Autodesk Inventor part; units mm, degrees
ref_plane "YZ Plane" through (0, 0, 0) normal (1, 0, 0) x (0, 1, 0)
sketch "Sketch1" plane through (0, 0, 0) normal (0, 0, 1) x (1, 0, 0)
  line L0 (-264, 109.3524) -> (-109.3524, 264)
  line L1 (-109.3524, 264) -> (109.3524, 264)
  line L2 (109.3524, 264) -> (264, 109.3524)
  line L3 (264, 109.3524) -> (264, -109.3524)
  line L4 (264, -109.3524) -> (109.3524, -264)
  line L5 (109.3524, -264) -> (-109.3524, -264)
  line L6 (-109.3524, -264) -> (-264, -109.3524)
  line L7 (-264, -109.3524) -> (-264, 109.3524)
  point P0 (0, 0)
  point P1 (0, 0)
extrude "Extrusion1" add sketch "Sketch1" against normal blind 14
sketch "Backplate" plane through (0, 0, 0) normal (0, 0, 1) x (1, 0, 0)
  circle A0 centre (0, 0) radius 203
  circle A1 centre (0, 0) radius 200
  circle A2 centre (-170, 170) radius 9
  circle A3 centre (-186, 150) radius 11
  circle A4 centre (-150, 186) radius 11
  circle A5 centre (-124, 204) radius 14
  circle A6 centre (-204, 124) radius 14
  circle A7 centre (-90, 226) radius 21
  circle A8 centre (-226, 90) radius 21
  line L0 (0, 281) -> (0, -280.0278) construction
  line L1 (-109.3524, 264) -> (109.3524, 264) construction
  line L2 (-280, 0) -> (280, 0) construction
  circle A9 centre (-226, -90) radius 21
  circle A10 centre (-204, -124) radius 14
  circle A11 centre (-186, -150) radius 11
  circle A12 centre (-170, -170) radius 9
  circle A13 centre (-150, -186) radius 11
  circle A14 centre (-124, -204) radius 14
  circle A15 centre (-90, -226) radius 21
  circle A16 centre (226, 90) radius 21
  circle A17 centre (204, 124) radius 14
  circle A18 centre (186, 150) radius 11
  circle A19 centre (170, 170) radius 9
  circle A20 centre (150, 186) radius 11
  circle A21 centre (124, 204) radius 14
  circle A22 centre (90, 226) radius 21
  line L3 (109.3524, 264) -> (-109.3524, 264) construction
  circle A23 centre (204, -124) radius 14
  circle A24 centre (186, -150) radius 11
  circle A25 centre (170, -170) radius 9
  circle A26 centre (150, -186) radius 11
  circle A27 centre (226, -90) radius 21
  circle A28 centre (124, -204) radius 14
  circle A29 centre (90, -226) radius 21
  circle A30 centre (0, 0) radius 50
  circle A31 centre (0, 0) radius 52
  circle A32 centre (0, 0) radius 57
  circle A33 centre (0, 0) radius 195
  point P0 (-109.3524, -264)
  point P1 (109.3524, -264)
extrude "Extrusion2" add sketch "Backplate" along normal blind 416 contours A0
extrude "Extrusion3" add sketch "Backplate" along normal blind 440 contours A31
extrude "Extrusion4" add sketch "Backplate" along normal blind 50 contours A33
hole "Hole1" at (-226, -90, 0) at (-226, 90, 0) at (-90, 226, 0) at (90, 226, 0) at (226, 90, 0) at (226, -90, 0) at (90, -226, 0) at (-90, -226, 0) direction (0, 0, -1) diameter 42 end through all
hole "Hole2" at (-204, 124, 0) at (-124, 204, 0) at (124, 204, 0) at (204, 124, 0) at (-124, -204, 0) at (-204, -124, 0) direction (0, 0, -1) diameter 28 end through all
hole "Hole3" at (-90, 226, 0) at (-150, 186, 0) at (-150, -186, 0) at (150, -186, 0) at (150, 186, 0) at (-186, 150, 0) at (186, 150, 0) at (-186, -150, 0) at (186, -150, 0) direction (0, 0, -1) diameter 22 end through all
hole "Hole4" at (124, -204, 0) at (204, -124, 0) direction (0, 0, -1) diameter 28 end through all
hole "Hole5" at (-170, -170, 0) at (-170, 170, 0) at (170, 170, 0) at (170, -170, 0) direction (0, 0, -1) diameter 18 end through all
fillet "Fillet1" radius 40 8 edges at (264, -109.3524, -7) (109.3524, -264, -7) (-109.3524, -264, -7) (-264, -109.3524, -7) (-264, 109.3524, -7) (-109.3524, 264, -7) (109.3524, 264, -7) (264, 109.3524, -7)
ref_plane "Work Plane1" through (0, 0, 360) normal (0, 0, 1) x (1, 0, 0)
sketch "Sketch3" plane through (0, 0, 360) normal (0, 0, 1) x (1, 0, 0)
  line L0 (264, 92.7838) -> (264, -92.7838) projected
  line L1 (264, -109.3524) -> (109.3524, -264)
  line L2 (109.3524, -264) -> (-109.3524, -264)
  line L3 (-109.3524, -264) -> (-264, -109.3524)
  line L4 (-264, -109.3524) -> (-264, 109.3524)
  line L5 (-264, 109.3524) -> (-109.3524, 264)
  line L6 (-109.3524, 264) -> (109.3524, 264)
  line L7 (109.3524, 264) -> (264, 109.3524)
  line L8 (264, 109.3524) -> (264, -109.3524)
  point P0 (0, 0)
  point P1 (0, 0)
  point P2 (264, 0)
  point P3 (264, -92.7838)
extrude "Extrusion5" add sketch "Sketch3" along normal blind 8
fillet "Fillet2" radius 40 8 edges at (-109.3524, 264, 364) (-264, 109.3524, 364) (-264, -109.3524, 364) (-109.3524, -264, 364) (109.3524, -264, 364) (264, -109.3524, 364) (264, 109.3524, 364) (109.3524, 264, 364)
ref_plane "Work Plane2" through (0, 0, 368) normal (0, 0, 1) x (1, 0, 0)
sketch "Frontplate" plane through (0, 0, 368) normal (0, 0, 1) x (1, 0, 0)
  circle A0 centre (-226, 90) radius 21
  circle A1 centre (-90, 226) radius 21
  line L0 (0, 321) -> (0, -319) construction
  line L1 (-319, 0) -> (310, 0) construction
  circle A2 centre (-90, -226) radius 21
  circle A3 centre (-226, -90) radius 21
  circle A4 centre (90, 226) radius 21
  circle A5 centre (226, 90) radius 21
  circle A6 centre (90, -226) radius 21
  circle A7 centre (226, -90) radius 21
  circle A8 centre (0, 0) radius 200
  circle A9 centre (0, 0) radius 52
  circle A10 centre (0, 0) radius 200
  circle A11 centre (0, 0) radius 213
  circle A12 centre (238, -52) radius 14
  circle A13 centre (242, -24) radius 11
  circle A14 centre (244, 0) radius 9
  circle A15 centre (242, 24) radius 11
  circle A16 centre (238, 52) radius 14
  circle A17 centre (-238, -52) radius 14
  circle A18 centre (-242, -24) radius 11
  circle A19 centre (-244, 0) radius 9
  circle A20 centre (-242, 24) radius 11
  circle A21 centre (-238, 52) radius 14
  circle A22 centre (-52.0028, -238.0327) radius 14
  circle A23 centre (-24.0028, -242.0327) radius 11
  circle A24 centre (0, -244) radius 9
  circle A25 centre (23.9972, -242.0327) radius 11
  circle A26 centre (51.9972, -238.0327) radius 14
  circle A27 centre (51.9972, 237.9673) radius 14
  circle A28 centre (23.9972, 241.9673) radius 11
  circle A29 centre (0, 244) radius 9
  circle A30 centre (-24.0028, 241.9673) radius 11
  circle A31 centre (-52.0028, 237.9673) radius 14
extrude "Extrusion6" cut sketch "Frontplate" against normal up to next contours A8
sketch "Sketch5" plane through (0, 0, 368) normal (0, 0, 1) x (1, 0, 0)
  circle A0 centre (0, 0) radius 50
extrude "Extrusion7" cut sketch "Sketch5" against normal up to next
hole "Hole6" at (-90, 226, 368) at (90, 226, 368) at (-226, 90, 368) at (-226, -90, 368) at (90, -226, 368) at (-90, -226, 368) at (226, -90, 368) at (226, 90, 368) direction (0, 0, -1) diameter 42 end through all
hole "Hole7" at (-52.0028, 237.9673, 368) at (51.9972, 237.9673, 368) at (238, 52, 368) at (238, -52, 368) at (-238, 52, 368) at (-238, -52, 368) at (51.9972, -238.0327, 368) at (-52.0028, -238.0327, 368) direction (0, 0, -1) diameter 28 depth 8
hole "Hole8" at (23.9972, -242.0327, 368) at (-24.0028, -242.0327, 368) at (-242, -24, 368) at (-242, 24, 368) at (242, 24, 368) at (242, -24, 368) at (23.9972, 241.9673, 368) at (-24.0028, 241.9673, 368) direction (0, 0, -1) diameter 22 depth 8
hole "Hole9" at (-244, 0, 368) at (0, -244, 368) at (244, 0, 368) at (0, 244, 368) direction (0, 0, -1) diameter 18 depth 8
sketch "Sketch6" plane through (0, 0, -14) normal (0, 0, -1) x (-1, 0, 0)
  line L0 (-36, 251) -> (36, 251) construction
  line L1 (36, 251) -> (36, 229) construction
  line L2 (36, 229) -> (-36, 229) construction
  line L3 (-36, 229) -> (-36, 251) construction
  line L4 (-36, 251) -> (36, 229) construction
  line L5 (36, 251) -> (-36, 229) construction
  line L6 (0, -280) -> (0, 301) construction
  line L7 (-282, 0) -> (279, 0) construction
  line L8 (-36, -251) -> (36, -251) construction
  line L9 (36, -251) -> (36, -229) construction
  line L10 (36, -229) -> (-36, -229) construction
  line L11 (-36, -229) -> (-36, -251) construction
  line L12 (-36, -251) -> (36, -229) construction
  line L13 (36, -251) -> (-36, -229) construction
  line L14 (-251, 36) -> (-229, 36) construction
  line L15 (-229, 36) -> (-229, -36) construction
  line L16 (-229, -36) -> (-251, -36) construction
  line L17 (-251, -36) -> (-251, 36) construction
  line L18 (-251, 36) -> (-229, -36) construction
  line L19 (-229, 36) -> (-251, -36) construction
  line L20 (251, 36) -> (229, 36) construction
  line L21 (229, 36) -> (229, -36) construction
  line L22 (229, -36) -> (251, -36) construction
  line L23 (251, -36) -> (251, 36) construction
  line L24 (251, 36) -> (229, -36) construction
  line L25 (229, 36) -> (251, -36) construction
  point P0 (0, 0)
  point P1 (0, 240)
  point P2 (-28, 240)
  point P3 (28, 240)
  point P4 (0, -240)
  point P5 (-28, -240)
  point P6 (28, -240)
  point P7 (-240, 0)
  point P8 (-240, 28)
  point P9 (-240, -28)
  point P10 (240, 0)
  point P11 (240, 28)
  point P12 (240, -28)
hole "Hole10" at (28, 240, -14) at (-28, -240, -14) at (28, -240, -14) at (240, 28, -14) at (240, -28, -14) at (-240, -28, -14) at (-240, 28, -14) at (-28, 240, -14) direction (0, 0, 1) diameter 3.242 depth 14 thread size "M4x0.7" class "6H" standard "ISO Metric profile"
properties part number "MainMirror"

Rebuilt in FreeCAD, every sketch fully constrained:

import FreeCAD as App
import Part
import Sketcher
Q = App.Units.Quantity


def edges_at(feature, points):
    """Names of the edges that pass closest to the given points."""
    edges = feature.Shape.Edges
    near = lambda p: min(range(len(edges)), key=lambda i: edges[i].distToShape(Part.Vertex(*p))[0])
    return sorted({f"Edge{near(p) + 1}" for p in points})

doc = App.newDocument("Part")
body = doc.addObject("PartDesign::Body", "Body")

sketch1 = body.newObject("Sketcher::SketchObject", "Sketch")
sketch1.AttachmentSupport = (doc.getObject("XY_Plane"), [""])
sketch1.MapMode = "FlatFace"
sketch1.addGeometry(Part.LineSegment(App.Vector(-109, 264, 0), App.Vector(-264, 109, 0)), False)
sketch1.addGeometry(Part.LineSegment(App.Vector(-264, 109, 0), App.Vector(-264, -109, 0)), False)
sketch1.addGeometry(Part.LineSegment(App.Vector(-264, -109, 0), App.Vector(-109, -264, 0)), False)
sketch1.addGeometry(Part.LineSegment(App.Vector(-109, -264, 0), App.Vector(109, -264, 0)), False)
sketch1.addGeometry(Part.LineSegment(App.Vector(109, -264, 0), App.Vector(264, -109, 0)), False)
sketch1.addGeometry(Part.LineSegment(App.Vector(264, -109, 0), App.Vector(264, 109, 0)), False)
sketch1.addGeometry(Part.LineSegment(App.Vector(264, 109, 0), App.Vector(109, 264, 0)), False)
sketch1.addGeometry(Part.LineSegment(App.Vector(109, 264, 0), App.Vector(-109, 264, 0)), False)
sketch1.addConstraint(Sketcher.Constraint("Coincident", 0, 2, 1, 1))
sketch1.addConstraint(Sketcher.Constraint("Coincident", 1, 2, 2, 1))
sketch1.addConstraint(Sketcher.Constraint("Coincident", 2, 2, 3, 1))
sketch1.addConstraint(Sketcher.Constraint("Coincident", 3, 2, 4, 1))
sketch1.addConstraint(Sketcher.Constraint("Coincident", 4, 2, 5, 1))
sketch1.addConstraint(Sketcher.Constraint("Coincident", 5, 2, 6, 1))
sketch1.addConstraint(Sketcher.Constraint("Coincident", 6, 2, 7, 1))
sketch1.addConstraint(Sketcher.Constraint("Coincident", 7, 2, 0, 1))
sketch1.addConstraint(Sketcher.Constraint("Vertical", 1))
sketch1.addConstraint(Sketcher.Constraint("Horizontal", 3))
sketch1.addConstraint(Sketcher.Constraint("Vertical", 5))
sketch1.addConstraint(Sketcher.Constraint("Horizontal", 7))
sketch1.addConstraint(Sketcher.Constraint("Symmetric", 0, 2, 4, 2, -1, 1))
sketch1.addConstraint(Sketcher.Constraint("Symmetric", 2, 2, 6, 2, -1, 1))
sketch1.addConstraint(Sketcher.Constraint("Perpendicular", 0, 2))
sketch1.addConstraint(Sketcher.Constraint("Perpendicular", 2, 4))
sketch1.addConstraint(Sketcher.Constraint("Perpendicular", 4, 6))
sketch1.addConstraint(Sketcher.Constraint("Horizontal", 1, 2, 4, 2))
sketch1.addConstraint(Sketcher.Constraint("Vertical", 3, 2, 6, 2))
sketch1.addConstraint(Sketcher.Constraint("Equal", 7, 1))
sketch1.addConstraint(Sketcher.Constraint("DistanceX", 0, 2, -1, 1, Q("264 mm")))
sketch1.addConstraint(Sketcher.Constraint("DistanceX", 3, 1, 3, 2, Q("218.7048 mm")))
pad1 = body.newObject("PartDesign::Pad", "Pad")
pad1.Profile = sketch1
pad1.Length = 14
pad1.Reversed = True

sketch2 = body.newObject("Sketcher::SketchObject", "Sketch001")
sketch2.AttachmentSupport = (doc.getObject("XY_Plane"), [""])
sketch2.MapMode = "FlatFace"
sketch2.addGeometry(Part.Circle(App.Vector(0, 0, 0), App.Vector(0, 0, 1), 203), False)
sketch2.addGeometry(Part.Circle(App.Vector(0, 0, 0), App.Vector(0, 0, 1), 200), False)
sketch2.addConstraint(Sketcher.Constraint("Coincident", 0, 3, -1, 1))
sketch2.addConstraint(Sketcher.Constraint("Coincident", 1, 3, -1, 1))
sketch2.addConstraint(Sketcher.Constraint("Diameter", 0, Q("406 mm")))
sketch2.addConstraint(Sketcher.Constraint("Diameter", 1, Q("400 mm")))
pad2 = body.newObject("PartDesign::Pad", "Pad001")
pad2.Profile = sketch2
pad2.Length = 416

sketch3 = body.newObject("Sketcher::SketchObject", "Sketch002")
sketch3.AttachmentSupport = (doc.getObject("XY_Plane"), [""])
sketch3.MapMode = "FlatFace"
sketch3.addGeometry(Part.Circle(App.Vector(0, 0, 0), App.Vector(0, 0, 1), 52), False)
sketch3.addGeometry(Part.Circle(App.Vector(0, 0, 0), App.Vector(0, 0, 1), 50), False)
sketch3.addConstraint(Sketcher.Constraint("Coincident", 0, 3, -1, 1))
sketch3.addConstraint(Sketcher.Constraint("Coincident", 1, 3, -1, 1))
sketch3.addConstraint(Sketcher.Constraint("Diameter", 0, Q("104 mm")))
sketch3.addConstraint(Sketcher.Constraint("Diameter", 1, Q("100 mm")))
pad3 = body.newObject("PartDesign::Pad", "Pad002")
pad3.Profile = sketch3
pad3.Length = 440

sketch4 = body.newObject("Sketcher::SketchObject", "Sketch003")
sketch4.AttachmentSupport = (doc.getObject("XY_Plane"), [""])
sketch4.MapMode = "FlatFace"
sketch4.addGeometry(Part.Circle(App.Vector(0, 0, 0), App.Vector(0, 0, 1), 195), False)
sketch4.addGeometry(Part.Circle(App.Vector(0, 0, 0), App.Vector(0, 0, 1), 57), False)
sketch4.addConstraint(Sketcher.Constraint("Coincident", 0, 3, -1, 1))
sketch4.addConstraint(Sketcher.Constraint("Coincident", 1, 3, -1, 1))
sketch4.addConstraint(Sketcher.Constraint("Diameter", 0, Q("390 mm")))
sketch4.addConstraint(Sketcher.Constraint("Diameter", 1, Q("114 mm")))
pad4 = body.newObject("PartDesign::Pad", "Pad003")
pad4.Profile = sketch4
pad4.Length = 50

sketch5 = body.newObject("Sketcher::SketchObject", "Sketch004")
sketch5.AttachmentSupport = (doc.getObject("XY_Plane"), [""])
sketch5.MapMode = "FlatFace"
sketch5.addGeometry(Part.Circle(App.Vector(-226, -90, 0), App.Vector(0, 0, 1), 21), False)
sketch5.addGeometry(Part.Circle(App.Vector(-226, 90, 0), App.Vector(0, 0, 1), 21), False)
sketch5.addGeometry(Part.Circle(App.Vector(-90, 226, 0), App.Vector(0, 0, 1), 21), False)
sketch5.addGeometry(Part.Circle(App.Vector(90, 226, 0), App.Vector(0, 0, 1), 21), False)
sketch5.addGeometry(Part.Circle(App.Vector(226, 90, 0), App.Vector(0, 0, 1), 21), False)
sketch5.addGeometry(Part.Circle(App.Vector(226, -90, 0), App.Vector(0, 0, 1), 21), False)
sketch5.addGeometry(Part.Circle(App.Vector(90, -226, 0), App.Vector(0, 0, 1), 21), False)
sketch5.addGeometry(Part.Circle(App.Vector(-90, -226, 0), App.Vector(0, 0, 1), 21), False)
sketch5.addConstraint(Sketcher.Constraint("Equal", 0, 1))
sketch5.addConstraint(Sketcher.Constraint("Equal", 1, 2))
sketch5.addConstraint(Sketcher.Constraint("Equal", 2, 3))
sketch5.addConstraint(Sketcher.Constraint("Equal", 3, 4))
sketch5.addConstraint(Sketcher.Constraint("Equal", 4, 5))
sketch5.addConstraint(Sketcher.Constraint("Equal", 5, 6))
sketch5.addConstraint(Sketcher.Constraint("Equal", 6, 7))
sketch5.addConstraint(Sketcher.Constraint("Symmetric", 0, 3, 4, 3, -1, 1))
sketch5.addConstraint(Sketcher.Constraint("Symmetric", 1, 3, 5, 3, -1, 1))
sketch5.addConstraint(Sketcher.Constraint("Symmetric", 2, 3, 6, 3, -1, 1))
sketch5.addConstraint(Sketcher.Constraint("Symmetric", 3, 3, 7, 3, -1, 1))
sketch5.addConstraint(Sketcher.Constraint("Symmetric", 2, 3, 3, 3, -2))
sketch5.addConstraint(Sketcher.Constraint("Symmetric", 1, 3, 4, 3, -2))
sketch5.addConstraint(Sketcher.Constraint("Diameter", 0, Q("42 mm")))
sketch5.addConstraint(Sketcher.Constraint("DistanceX", 0, 3, -1, 1, Q("226 mm")))
sketch5.addConstraint(Sketcher.Constraint("DistanceY", 0, 3, -1, 1, Q("90 mm")))
sketch5.addConstraint(Sketcher.Constraint("DistanceX", 2, 3, -1, 1, Q("90 mm")))
sketch5.addConstraint(Sketcher.Constraint("DistanceY", -1, 1, 2, 3, Q("226 mm")))
doc.recompute()
hole = body.newObject("PartDesign::Hole", "Hole")
hole.Profile = sketch5
hole.ThreadType = "None"
hole.Diameter = 42
hole.DepthType = "ThroughAll"

sketch6 = body.newObject("Sketcher::SketchObject", "Sketch005")
sketch6.AttachmentSupport = (doc.getObject("XY_Plane"), [""])
sketch6.MapMode = "FlatFace"
sketch6.addGeometry(Part.Circle(App.Vector(-204, 124, 0), App.Vector(0, 0, 1), 14), False)
sketch6.addGeometry(Part.Circle(App.Vector(-124, 204, 0), App.Vector(0, 0, 1), 14), False)
sketch6.addGeometry(Part.Circle(App.Vector(124, 204, 0), App.Vector(0, 0, 1), 14), False)
sketch6.addGeometry(Part.Circle(App.Vector(204, 124, 0), App.Vector(0, 0, 1), 14), False)
sketch6.addGeometry(Part.Circle(App.Vector(-124, -204, 0), App.Vector(0, 0, 1), 14), False)
sketch6.addGeometry(Part.Circle(App.Vector(-204, -124, 0), App.Vector(0, 0, 1), 14), False)
sketch6.addConstraint(Sketcher.Constraint("Equal", 0, 1))
sketch6.addConstraint(Sketcher.Constraint("Equal", 1, 2))
sketch6.addConstraint(Sketcher.Constraint("Equal", 2, 3))
sketch6.addConstraint(Sketcher.Constraint("Equal", 3, 4))
sketch6.addConstraint(Sketcher.Constraint("Equal", 4, 5))
sketch6.addConstraint(Sketcher.Constraint("Symmetric", 2, 3, 4, 3, -1, 1))
sketch6.addConstraint(Sketcher.Constraint("Symmetric", 3, 3, 5, 3, -1, 1))
sketch6.addConstraint(Sketcher.Constraint("Symmetric", 1, 3, 2, 3, -2))
sketch6.addConstraint(Sketcher.Constraint("Symmetric", 0, 3, 3, 3, -2))
sketch6.addConstraint(Sketcher.Constraint("Diameter", 0, Q("28 mm")))
sketch6.addConstraint(Sketcher.Constraint("DistanceX", 0, 3, -1, 1, Q("204 mm")))
sketch6.addConstraint(Sketcher.Constraint("DistanceY", -1, 1, 0, 3, Q("124 mm")))
sketch6.addConstraint(Sketcher.Constraint("DistanceX", 1, 3, -1, 1, Q("124 mm")))
sketch6.addConstraint(Sketcher.Constraint("DistanceY", -1, 1, 1, 3, Q("204 mm")))
doc.recompute()
hole2 = body.newObject("PartDesign::Hole", "Hole001")
hole2.Profile = sketch6
hole2.ThreadType = "None"
hole2.Diameter = 28
hole2.DepthType = "ThroughAll"

sketch7 = body.newObject("Sketcher::SketchObject", "Sketch006")
sketch7.AttachmentSupport = (doc.getObject("XY_Plane"), [""])
sketch7.MapMode = "FlatFace"
sketch7.addGeometry(Part.Circle(App.Vector(-90, 226, 0), App.Vector(0, 0, 1), 11), False)
sketch7.addGeometry(Part.Circle(App.Vector(-150, 186, 0), App.Vector(0, 0, 1), 11), False)
sketch7.addGeometry(Part.Circle(App.Vector(-150, -186, 0), App.Vector(0, 0, 1), 11), False)
sketch7.addGeometry(Part.Circle(App.Vector(150, -186, 0), App.Vector(0, 0, 1), 11), False)
sketch7.addGeometry(Part.Circle(App.Vector(150, 186, 0), App.Vector(0, 0, 1), 11), False)
sketch7.addGeometry(Part.Circle(App.Vector(-186, 150, 0), App.Vector(0, 0, 1), 11), False)
sketch7.addGeometry(Part.Circle(App.Vector(186, 150, 0), App.Vector(0, 0, 1), 11), False)
sketch7.addGeometry(Part.Circle(App.Vector(-186, -150, 0), App.Vector(0, 0, 1), 11), False)
sketch7.addGeometry(Part.Circle(App.Vector(186, -150, 0), App.Vector(0, 0, 1), 11), False)
sketch7.addConstraint(Sketcher.Constraint("Equal", 0, 1))
sketch7.addConstraint(Sketcher.Constraint("Equal", 1, 2))
sketch7.addConstraint(Sketcher.Constraint("Equal", 2, 3))
sketch7.addConstraint(Sketcher.Constraint("Equal", 3, 4))
sketch7.addConstraint(Sketcher.Constraint("Equal", 4, 5))
sketch7.addConstraint(Sketcher.Constraint("Equal", 5, 6))
sketch7.addConstraint(Sketcher.Constraint("Equal", 6, 7))
sketch7.addConstraint(Sketcher.Constraint("Equal", 7, 8))
sketch7.addConstraint(Sketcher.Constraint("Symmetric", 1, 3, 3, 3, -1, 1))
sketch7.addConstraint(Sketcher.Constraint("Symmetric", 2, 3, 4, 3, -1, 1))
sketch7.addConstraint(Sketcher.Constraint("Symmetric", 6, 3, 7, 3, -1, 1))
sketch7.addConstraint(Sketcher.Constraint("Symmetric", 5, 3, 8, 3, -1, 1))
sketch7.addConstraint(Sketcher.Constraint("Symmetric", 2, 3, 3, 3, -2))
sketch7.addConstraint(Sketcher.Constraint("Symmetric", 5, 3, 6, 3, -2))
sketch7.addConstraint(Sketcher.Constraint("Diameter", 0, Q("22 mm")))
sketch7.addConstraint(Sketcher.Constraint("DistanceX", 0, 3, -1, 1, Q("90 mm")))
sketch7.addConstraint(Sketcher.Constraint("DistanceY", -1, 1, 0, 3, Q("226 mm")))
sketch7.addConstraint(Sketcher.Constraint("DistanceX", 1, 3, -1, 1, Q("150 mm")))
sketch7.addConstraint(Sketcher.Constraint("DistanceY", -1, 1, 1, 3, Q("186 mm")))
sketch7.addConstraint(Sketcher.Constraint("DistanceX", 5, 3, -1, 1, Q("186 mm")))
sketch7.addConstraint(Sketcher.Constraint("DistanceY", -1, 1, 5, 3, Q("150 mm")))
doc.recompute()
hole3 = body.newObject("PartDesign::Hole", "Hole002")
hole3.Profile = sketch7
hole3.ThreadType = "None"
hole3.Diameter = 22
hole3.DepthType = "ThroughAll"

sketch8 = body.newObject("Sketcher::SketchObject", "Sketch007")
sketch8.AttachmentSupport = (doc.getObject("XY_Plane"), [""])
sketch8.MapMode = "FlatFace"
sketch8.addGeometry(Part.Circle(App.Vector(124, -204, 0), App.Vector(0, 0, 1), 14), False)
sketch8.addGeometry(Part.Circle(App.Vector(204, -124, 0), App.Vector(0, 0, 1), 14), False)
sketch8.addConstraint(Sketcher.Constraint("Equal", 0, 1))
sketch8.addConstraint(Sketcher.Constraint("Diameter", 0, Q("28 mm")))
sketch8.addConstraint(Sketcher.Constraint("DistanceX", -1, 1, 0, 3, Q("124 mm")))
sketch8.addConstraint(Sketcher.Constraint("DistanceY", 0, 3, -1, 1, Q("204 mm")))
sketch8.addConstraint(Sketcher.Constraint("DistanceX", -1, 1, 1, 3, Q("204 mm")))
sketch8.addConstraint(Sketcher.Constraint("DistanceY", 1, 3, -1, 1, Q("124 mm")))
doc.recompute()
hole4 = body.newObject("PartDesign::Hole", "Hole003")
hole4.Profile = sketch8
hole4.ThreadType = "None"
hole4.Diameter = 28
hole4.DepthType = "ThroughAll"

sketch9 = body.newObject("Sketcher::SketchObject", "Sketch008")
sketch9.AttachmentSupport = (doc.getObject("XY_Plane"), [""])
sketch9.MapMode = "FlatFace"
sketch9.addGeometry(Part.Circle(App.Vector(-170, -170, 0), App.Vector(0, 0, 1), 9), False)
sketch9.addGeometry(Part.Circle(App.Vector(-170, 170, 0), App.Vector(0, 0, 1), 9), False)
sketch9.addGeometry(Part.Circle(App.Vector(170, 170, 0), App.Vector(0, 0, 1), 9), False)
sketch9.addGeometry(Part.Circle(App.Vector(170, -170, 0), App.Vector(0, 0, 1), 9), False)
sketch9.addConstraint(Sketcher.Constraint("Equal", 0, 1))
sketch9.addConstraint(Sketcher.Constraint("Equal", 1, 2))
sketch9.addConstraint(Sketcher.Constraint("Equal", 2, 3))
sketch9.addConstraint(Sketcher.Constraint("Symmetric", 0, 3, 2, 3, -1, 1))
sketch9.addConstraint(Sketcher.Constraint("Symmetric", 1, 3, 3, 3, -1, 1))
sketch9.addConstraint(Sketcher.Constraint("Symmetric", 1, 3, 2, 3, -2))
sketch9.addConstraint(Sketcher.Constraint("Diameter", 0, Q("18 mm")))
sketch9.addConstraint(Sketcher.Constraint("DistanceX", 0, 3, -1, 1, Q("170 mm")))
sketch9.addConstraint(Sketcher.Constraint("DistanceY", 0, 3, -1, 1, Q("170 mm")))
doc.recompute()
hole5 = body.newObject("PartDesign::Hole", "Hole004")
hole5.Profile = sketch9
hole5.ThreadType = "None"
hole5.Diameter = 18
hole5.DepthType = "ThroughAll"
doc.recompute()

fillet = body.newObject("PartDesign::Fillet", "Fillet")
fillet.Base = (hole5, edges_at(hole5, [
    (264, -109.352, -7),
    (109.352, -264, -7),
    (-109.352, -264, -7),
    (-264, -109.352, -7),
    (-264, 109.352, -7),
    (-109.352, 264, -7),
    (109.352, 264, -7),
    (264, 109.352, -7),
]))
fillet.Radius = 40

sketch10 = body.newObject("Sketcher::SketchObject", "Sketch009")
sketch10.AttachmentSupport = (doc.getObject("XY_Plane"), [""])
sketch10.MapMode = "FlatFace"
sketch10.AttachmentOffset = App.Placement(App.Vector(0, 0, 360), App.Rotation())
sketch10.addGeometry(Part.LineSegment(App.Vector(264, -109, 0), App.Vector(264, 109, 0)), False)
sketch10.addGeometry(Part.LineSegment(App.Vector(264, 109, 0), App.Vector(109, 264, 0)), False)
sketch10.addGeometry(Part.LineSegment(App.Vector(109, 264, 0), App.Vector(-109, 264, 0)), False)
sketch10.addGeometry(Part.LineSegment(App.Vector(-109, 264, 0), App.Vector(-264, 109, 0)), False)
sketch10.addGeometry(Part.LineSegment(App.Vector(-264, 109, 0), App.Vector(-264, -109, 0)), False)
sketch10.addGeometry(Part.LineSegment(App.Vector(-264, -109, 0), App.Vector(-109, -264, 0)), False)
sketch10.addGeometry(Part.LineSegment(App.Vector(-109, -264, 0), App.Vector(109, -264, 0)), False)
sketch10.addGeometry(Part.LineSegment(App.Vector(109, -264, 0), App.Vector(264, -109, 0)), False)
sketch10.addConstraint(Sketcher.Constraint("Coincident", 0, 2, 1, 1))
sketch10.addConstraint(Sketcher.Constraint("Coincident", 1, 2, 2, 1))
sketch10.addConstraint(Sketcher.Constraint("Coincident", 2, 2, 3, 1))
sketch10.addConstraint(Sketcher.Constraint("Coincident", 3, 2, 4, 1))
sketch10.addConstraint(Sketcher.Constraint("Coincident", 4, 2, 5, 1))
sketch10.addConstraint(Sketcher.Constraint("Coincident", 5, 2, 6, 1))
sketch10.addConstraint(Sketcher.Constraint("Coincident", 6, 2, 7, 1))
sketch10.addConstraint(Sketcher.Constraint("Coincident", 7, 2, 0, 1))
sketch10.addConstraint(Sketcher.Constraint("Vertical", 0))
sketch10.addConstraint(Sketcher.Constraint("Horizontal", 2))
sketch10.addConstraint(Sketcher.Constraint("Vertical", 4))
sketch10.addConstraint(Sketcher.Constraint("Horizontal", 6))
sketch10.addConstraint(Sketcher.Constraint("Symmetric", 0, 2, 4, 2, -1, 1))
sketch10.addConstraint(Sketcher.Constraint("Symmetric", 1, 2, 5, 2, -1, 1))
sketch10.addConstraint(Sketcher.Constraint("Perpendicular", 1, 3))
sketch10.addConstraint(Sketcher.Constraint("Perpendicular", 5, 7))
sketch10.addConstraint(Sketcher.Constraint("Horizontal", 0, 2, 3, 2))
sketch10.addConstraint(Sketcher.Constraint("Horizontal", 4, 2, 7, 2))
sketch10.addConstraint(Sketcher.Constraint("Vertical", 2, 2, 5, 2))
sketch10.addConstraint(Sketcher.Constraint("Equal", 6, 0))
sketch10.addConstraint(Sketcher.Constraint("DistanceX", -1, 1, 0, 2, Q("264 mm")))
sketch10.addConstraint(Sketcher.Constraint("DistanceX", 2, 2, 2, 1, Q("218.7048 mm")))
pad5 = body.newObject("PartDesign::Pad", "Pad004")
pad5.Profile = sketch10
pad5.Length = 8
doc.recompute()

fillet2 = body.newObject("PartDesign::Fillet", "Fillet001")
fillet2.Base = (pad5, edges_at(pad5, [
    (-109.352, 264, 364),
    (-264, 109.352, 364),
    (-264, -109.352, 364),
    (-109.352, -264, 364),
    (109.352, -264, 364),
    (264, -109.352, 364),
    (264, 109.352, 364),
    (109.352, 264, 364),
]))
fillet2.Radius = 40

sketch11 = body.newObject("Sketcher::SketchObject", "Sketch010")
sketch11.AttachmentSupport = (doc.getObject("XY_Plane"), [""])
sketch11.MapMode = "FlatFace"
sketch11.AttachmentOffset = App.Placement(App.Vector(0, 0, 368), App.Rotation())
sketch11.addGeometry(Part.Circle(App.Vector(0, 0, 0), App.Vector(0, 0, 1), 200), False)
sketch11.addGeometry(Part.Circle(App.Vector(0, 0, 0), App.Vector(0, 0, 1), 52), False)
sketch11.addConstraint(Sketcher.Constraint("Coincident", 0, 3, -1, 1))
sketch11.addConstraint(Sketcher.Constraint("Coincident", 1, 3, -1, 1))
sketch11.addConstraint(Sketcher.Constraint("Diameter", 0, Q("400 mm")))
sketch11.addConstraint(Sketcher.Constraint("Diameter", 1, Q("104 mm")))
pocket1 = body.newObject("PartDesign::Pocket", "Pocket")
pocket1.Profile = sketch11
pocket1.Type = "UpToFirst"

sketch12 = body.newObject("Sketcher::SketchObject", "Sketch011")
sketch12.AttachmentSupport = (doc.getObject("XY_Plane"), [""])
sketch12.MapMode = "FlatFace"
sketch12.AttachmentOffset = App.Placement(App.Vector(0, 0, 368), App.Rotation())
sketch12.addGeometry(Part.Circle(App.Vector(0, 0, 0), App.Vector(0, 0, 1), 50), False)
sketch12.addConstraint(Sketcher.Constraint("Coincident", 0, 3, -1, 1))
sketch12.addConstraint(Sketcher.Constraint("Diameter", 0, Q("100 mm")))
pocket2 = body.newObject("PartDesign::Pocket", "Pocket001")
pocket2.Profile = sketch12
pocket2.Type = "UpToFirst"

sketch13 = body.newObject("Sketcher::SketchObject", "Sketch012")
sketch13.AttachmentSupport = (doc.getObject("XY_Plane"), [""])
sketch13.MapMode = "FlatFace"
sketch13.AttachmentOffset = App.Placement(App.Vector(0, 0, 368), App.Rotation())
sketch13.addGeometry(Part.Circle(App.Vector(-90, 226, 0), App.Vector(0, 0, 1), 21), False)
sketch13.addGeometry(Part.Circle(App.Vector(90, 226, 0), App.Vector(0, 0, 1), 21), False)
sketch13.addGeometry(Part.Circle(App.Vector(-226, 90, 0), App.Vector(0, 0, 1), 21), False)
sketch13.addGeometry(Part.Circle(App.Vector(-226, -90, 0), App.Vector(0, 0, 1), 21), False)
sketch13.addGeometry(Part.Circle(App.Vector(90, -226, 0), App.Vector(0, 0, 1), 21), False)
sketch13.addGeometry(Part.Circle(App.Vector(-90, -226, 0), App.Vector(0, 0, 1), 21), False)
sketch13.addGeometry(Part.Circle(App.Vector(226, -90, 0), App.Vector(0, 0, 1), 21), False)
sketch13.addGeometry(Part.Circle(App.Vector(226, 90, 0), App.Vector(0, 0, 1), 21), False)
sketch13.addConstraint(Sketcher.Constraint("Equal", 0, 1))
sketch13.addConstraint(Sketcher.Constraint("Equal", 1, 2))
sketch13.addConstraint(Sketcher.Constraint("Equal", 2, 3))
sketch13.addConstraint(Sketcher.Constraint("Equal", 3, 4))
sketch13.addConstraint(Sketcher.Constraint("Equal", 4, 5))
sketch13.addConstraint(Sketcher.Constraint("Equal", 5, 6))
sketch13.addConstraint(Sketcher.Constraint("Equal", 6, 7))
sketch13.addConstraint(Sketcher.Constraint("Symmetric", 0, 3, 4, 3, -1, 1))
sketch13.addConstraint(Sketcher.Constraint("Symmetric", 1, 3, 5, 3, -1, 1))
sketch13.addConstraint(Sketcher.Constraint("Symmetric", 2, 3, 6, 3, -1, 1))
sketch13.addConstraint(Sketcher.Constraint("Symmetric", 3, 3, 7, 3, -1, 1))
sketch13.addConstraint(Sketcher.Constraint("Symmetric", 0, 3, 1, 3, -2))
sketch13.addConstraint(Sketcher.Constraint("Symmetric", 3, 3, 6, 3, -2))
sketch13.addConstraint(Sketcher.Constraint("Diameter", 0, Q("42 mm")))
sketch13.addConstraint(Sketcher.Constraint("DistanceX", 0, 3, -1, 1, Q("90 mm")))
sketch13.addConstraint(Sketcher.Constraint("DistanceY", -1, 1, 0, 3, Q("226 mm")))
sketch13.addConstraint(Sketcher.Constraint("DistanceX", 2, 3, -1, 1, Q("226 mm")))
sketch13.addConstraint(Sketcher.Constraint("DistanceY", -1, 1, 2, 3, Q("90 mm")))
doc.recompute()
hole6 = body.newObject("PartDesign::Hole", "Hole005")
hole6.Profile = sketch13
hole6.ThreadType = "None"
hole6.Diameter = 42
hole6.DepthType = "ThroughAll"

sketch14 = body.newObject("Sketcher::SketchObject", "Sketch013")
sketch14.AttachmentSupport = (doc.getObject("XY_Plane"), [""])
sketch14.MapMode = "FlatFace"
sketch14.AttachmentOffset = App.Placement(App.Vector(0, 0, 368), App.Rotation())
sketch14.addGeometry(Part.Circle(App.Vector(-52, 238, 0), App.Vector(0, 0, 1), 14), False)
sketch14.addGeometry(Part.Circle(App.Vector(52, 238, 0), App.Vector(0, 0, 1), 14), False)
sketch14.addGeometry(Part.Circle(App.Vector(238, 52, 0), App.Vector(0, 0, 1), 14), False)
sketch14.addGeometry(Part.Circle(App.Vector(238, -52, 0), App.Vector(0, 0, 1), 14), False)
sketch14.addGeometry(Part.Circle(App.Vector(-238, 52, 0), App.Vector(0, 0, 1), 14), False)
sketch14.addGeometry(Part.Circle(App.Vector(-238, -52, 0), App.Vector(0, 0, 1), 14), False)
sketch14.addGeometry(Part.Circle(App.Vector(52, -238, 0), App.Vector(0, 0, 1), 14), False)
sketch14.addGeometry(Part.Circle(App.Vector(-52, -238, 0), App.Vector(0, 0, 1), 14), False)
sketch14.addConstraint(Sketcher.Constraint("Equal", 0, 1))
sketch14.addConstraint(Sketcher.Constraint("Equal", 1, 2))
sketch14.addConstraint(Sketcher.Constraint("Equal", 2, 3))
sketch14.addConstraint(Sketcher.Constraint("Equal", 3, 4))
sketch14.addConstraint(Sketcher.Constraint("Equal", 4, 5))
sketch14.addConstraint(Sketcher.Constraint("Equal", 5, 6))
sketch14.addConstraint(Sketcher.Constraint("Equal", 6, 7))
sketch14.addConstraint(Sketcher.Constraint("Symmetric", 3, 3, 4, 3, -1, 1))
sketch14.addConstraint(Sketcher.Constraint("Symmetric", 2, 3, 5, 3, -1, 1))
sketch14.addConstraint(Sketcher.Constraint("Symmetric", 2, 3, 4, 3, -2))
sketch14.addConstraint(Sketcher.Constraint("Horizontal", 0, 3, 1, 3))
sketch14.addConstraint(Sketcher.Constraint("Horizontal", 6, 3, 7, 3))
sketch14.addConstraint(Sketcher.Constraint("Vertical", 1, 3, 6, 3))
sketch14.addConstraint(Sketcher.Constraint("Vertical", 0, 3, 7, 3))
sketch14.addConstraint(Sketcher.Constraint("Diameter", 0, Q("28 mm")))
sketch14.addConstraint(Sketcher.Constraint("DistanceX", -1, 1, 2, 3, Q("238 mm")))
sketch14.addConstraint(Sketcher.Constraint("DistanceY", -1, 1, 2, 3, Q("52 mm")))
sketch14.addConstraint(Sketcher.Constraint("DistanceX", 0, 3, 1, 3, Q("104 mm")))
sketch14.addConstraint(Sketcher.Constraint("DistanceY", 6, 3, 1, 3, Q("476 mm")))
sketch14.addConstraint(Sketcher.Constraint("DistanceX", 0, 3, -1, 1, Q("52.0028 mm")))
sketch14.addConstraint(Sketcher.Constraint("DistanceY", -1, 1, 0, 3, Q("237.9673 mm")))
doc.recompute()
hole7 = body.newObject("PartDesign::Hole", "Hole006")
hole7.Profile = sketch14
hole7.ThreadType = "None"
hole7.Diameter = 28
hole7.DepthType = "Dimension"
hole7.Depth = 8
hole7.DrillPoint = "Flat"

sketch15 = body.newObject("Sketcher::SketchObject", "Sketch014")
sketch15.AttachmentSupport = (doc.getObject("XY_Plane"), [""])
sketch15.MapMode = "FlatFace"
sketch15.AttachmentOffset = App.Placement(App.Vector(0, 0, 368), App.Rotation())
sketch15.addGeometry(Part.Circle(App.Vector(24, -242, 0), App.Vector(0, 0, 1), 11), False)
sketch15.addGeometry(Part.Circle(App.Vector(-24, -242, 0), App.Vector(0, 0, 1), 11), False)
sketch15.addGeometry(Part.Circle(App.Vector(-242, -24, 0), App.Vector(0, 0, 1), 11), False)
sketch15.addGeometry(Part.Circle(App.Vector(-242, 24, 0), App.Vector(0, 0, 1), 11), False)
sketch15.addGeometry(Part.Circle(App.Vector(242, 24, 0), App.Vector(0, 0, 1), 11), False)
sketch15.addGeometry(Part.Circle(App.Vector(242, -24, 0), App.Vector(0, 0, 1), 11), False)
sketch15.addGeometry(Part.Circle(App.Vector(24, 242, 0), App.Vector(0, 0, 1), 11), False)
sketch15.addGeometry(Part.Circle(App.Vector(-24, 242, 0), App.Vector(0, 0, 1), 11), False)
sketch15.addConstraint(Sketcher.Constraint("Equal", 0, 1))
sketch15.addConstraint(Sketcher.Constraint("Equal", 1, 2))
sketch15.addConstraint(Sketcher.Constraint("Equal", 2, 3))
sketch15.addConstraint(Sketcher.Constraint("Equal", 3, 4))
sketch15.addConstraint(Sketcher.Constraint("Equal", 4, 5))
sketch15.addConstraint(Sketcher.Constraint("Equal", 5, 6))
sketch15.addConstraint(Sketcher.Constraint("Equal", 6, 7))
sketch15.addConstraint(Sketcher.Constraint("Symmetric", 2, 3, 4, 3, -1, 1))
sketch15.addConstraint(Sketcher.Constraint("Symmetric", 3, 3, 5, 3, -1, 1))
sketch15.addConstraint(Sketcher.Constraint("Symmetric", 3, 3, 4, 3, -2))
sketch15.addConstraint(Sketcher.Constraint("Horizontal", 0, 3, 1, 3))
sketch15.addConstraint(Sketcher.Constraint("Horizontal", 6, 3, 7, 3))
sketch15.addConstraint(Sketcher.Constraint("Vertical", 0, 3, 6, 3))
sketch15.addConstraint(Sketcher.Constraint("Vertical", 1, 3, 7, 3))
sketch15.addConstraint(Sketcher.Constraint("Diameter", 0, Q("22 mm")))
sketch15.addConstraint(Sketcher.Constraint("DistanceX", 2, 3, -1, 1, Q("242 mm")))
sketch15.addConstraint(Sketcher.Constraint("DistanceY", 2, 3, -1, 1, Q("24 mm")))
sketch15.addConstraint(Sketcher.Constraint("DistanceX", 1, 3, 0, 3, Q("48 mm")))
sketch15.addConstraint(Sketcher.Constraint("DistanceY", 0, 3, 6, 3, Q("484 mm")))
sketch15.addConstraint(Sketcher.Constraint("DistanceX", -1, 1, 0, 3, Q("23.9972 mm")))
sketch15.addConstraint(Sketcher.Constraint("DistanceY", 0, 3, -1, 1, Q("242.0327 mm")))
doc.recompute()
hole8 = body.newObject("PartDesign::Hole", "Hole007")
hole8.Profile = sketch15
hole8.ThreadType = "None"
hole8.Diameter = 22
hole8.DepthType = "Dimension"
hole8.Depth = 8
hole8.DrillPoint = "Flat"

sketch16 = body.newObject("Sketcher::SketchObject", "Sketch015")
sketch16.AttachmentSupport = (doc.getObject("XY_Plane"), [""])
sketch16.MapMode = "FlatFace"
sketch16.AttachmentOffset = App.Placement(App.Vector(0, 0, 368), App.Rotation())
sketch16.addGeometry(Part.Circle(App.Vector(-244, 0, 0), App.Vector(0, 0, 1), 9), False)
sketch16.addGeometry(Part.Circle(App.Vector(0, -244, 0), App.Vector(0, 0, 1), 9), False)
sketch16.addGeometry(Part.Circle(App.Vector(244, 0, 0), App.Vector(0, 0, 1), 9), False)
sketch16.addGeometry(Part.Circle(App.Vector(0, 244, 0), App.Vector(0, 0, 1), 9), False)
sketch16.addConstraint(Sketcher.Constraint("Equal", 0, 1))
sketch16.addConstraint(Sketcher.Constraint("Equal", 1, 2))
sketch16.addConstraint(Sketcher.Constraint("Equal", 2, 3))
sketch16.addConstraint(Sketcher.Constraint("Symmetric", 0, 3, 2, 3, -1, 1))
sketch16.addConstraint(Sketcher.Constraint("Symmetric", 1, 3, 3, 3, -1, 1))
sketch16.addConstraint(Sketcher.Constraint("PointOnObject", 0, 3, -1))
sketch16.addConstraint(Sketcher.Constraint("PointOnObject", 1, 3, -2))
sketch16.addConstraint(Sketcher.Constraint("Diameter", 0, Q("18 mm")))
sketch16.addConstraint(Sketcher.Constraint("DistanceX", 0, 3, -1, 1, Q("244 mm")))
sketch16.addConstraint(Sketcher.Constraint("DistanceY", 1, 3, -1, 1, Q("244 mm")))
doc.recompute()
hole9 = body.newObject("PartDesign::Hole", "Hole008")
hole9.Profile = sketch16
hole9.ThreadType = "None"
hole9.Diameter = 18
hole9.DepthType = "Dimension"
hole9.Depth = 8
hole9.DrillPoint = "Flat"

sketch17 = body.newObject("Sketcher::SketchObject", "Sketch016")
sketch17.AttachmentSupport = (doc.getObject("XY_Plane"), [""])
sketch17.MapMode = "FlatFace"
sketch17.AttachmentOffset = App.Placement(App.Vector(0, 0, -14), App.Rotation())
sketch17.addGeometry(Part.Circle(App.Vector(28, 240, 0), App.Vector(0, 0, 1), 1.6), False)
sketch17.addGeometry(Part.Circle(App.Vector(-28, -240, 0), App.Vector(0, 0, 1), 1.6), False)
sketch17.addGeometry(Part.Circle(App.Vector(28, -240, 0), App.Vector(0, 0, 1), 1.6), False)
sketch17.addGeometry(Part.Circle(App.Vector(240, 28, 0), App.Vector(0, 0, 1), 1.6), False)
sketch17.addGeometry(Part.Circle(App.Vector(240, -28, 0), App.Vector(0, 0, 1), 1.6), False)
sketch17.addGeometry(Part.Circle(App.Vector(-240, -28, 0), App.Vector(0, 0, 1), 1.6), False)
sketch17.addGeometry(Part.Circle(App.Vector(-240, 28, 0), App.Vector(0, 0, 1), 1.6), False)
sketch17.addGeometry(Part.Circle(App.Vector(-28, 240, 0), App.Vector(0, 0, 1), 1.6), False)
sketch17.addConstraint(Sketcher.Constraint("Equal", 0, 1))
sketch17.addConstraint(Sketcher.Constraint("Equal", 1, 2))
sketch17.addConstraint(Sketcher.Constraint("Equal", 2, 3))
sketch17.addConstraint(Sketcher.Constraint("Equal", 3, 4))
sketch17.addConstraint(Sketcher.Constraint("Equal", 4, 5))
sketch17.addConstraint(Sketcher.Constraint("Equal", 5, 6))
sketch17.addConstraint(Sketcher.Constraint("Equal", 6, 7))
sketch17.addConstraint(Sketcher.Constraint("Symmetric", 0, 3, 1, 3, -1, 1))
sketch17.addConstraint(Sketcher.Constraint("Symmetric", 3, 3, 5, 3, -1, 1))
sketch17.addConstraint(Sketcher.Constraint("Symmetric", 4, 3, 6, 3, -1, 1))
sketch17.addConstraint(Sketcher.Constraint("Symmetric", 2, 3, 7, 3, -1, 1))
sketch17.addConstraint(Sketcher.Constraint("Symmetric", 1, 3, 2, 3, -2))
sketch17.addConstraint(Sketcher.Constraint("Symmetric", 4, 3, 5, 3, -2))
sketch17.addConstraint(Sketcher.Constraint("Diameter", 0, Q("3.242 mm")))
sketch17.addConstraint(Sketcher.Constraint("DistanceX", -1, 1, 0, 3, Q("28 mm")))
sketch17.addConstraint(Sketcher.Constraint("DistanceY", -1, 1, 0, 3, Q("240 mm")))
sketch17.addConstraint(Sketcher.Constraint("DistanceX", -1, 1, 3, 3, Q("240 mm")))
sketch17.addConstraint(Sketcher.Constraint("DistanceY", -1, 1, 3, 3, Q("28 mm")))
doc.recompute()
hole10 = body.newObject("PartDesign::Hole", "Hole009")
hole10.Profile = sketch17
hole10.ThreadType = "None"
hole10.Diameter = 3.242
hole10.DepthType = "Dimension"
hole10.Depth = 14
hole10.DrillPoint = "Flat"
hole10.Reversed = True

doc.recompute()
